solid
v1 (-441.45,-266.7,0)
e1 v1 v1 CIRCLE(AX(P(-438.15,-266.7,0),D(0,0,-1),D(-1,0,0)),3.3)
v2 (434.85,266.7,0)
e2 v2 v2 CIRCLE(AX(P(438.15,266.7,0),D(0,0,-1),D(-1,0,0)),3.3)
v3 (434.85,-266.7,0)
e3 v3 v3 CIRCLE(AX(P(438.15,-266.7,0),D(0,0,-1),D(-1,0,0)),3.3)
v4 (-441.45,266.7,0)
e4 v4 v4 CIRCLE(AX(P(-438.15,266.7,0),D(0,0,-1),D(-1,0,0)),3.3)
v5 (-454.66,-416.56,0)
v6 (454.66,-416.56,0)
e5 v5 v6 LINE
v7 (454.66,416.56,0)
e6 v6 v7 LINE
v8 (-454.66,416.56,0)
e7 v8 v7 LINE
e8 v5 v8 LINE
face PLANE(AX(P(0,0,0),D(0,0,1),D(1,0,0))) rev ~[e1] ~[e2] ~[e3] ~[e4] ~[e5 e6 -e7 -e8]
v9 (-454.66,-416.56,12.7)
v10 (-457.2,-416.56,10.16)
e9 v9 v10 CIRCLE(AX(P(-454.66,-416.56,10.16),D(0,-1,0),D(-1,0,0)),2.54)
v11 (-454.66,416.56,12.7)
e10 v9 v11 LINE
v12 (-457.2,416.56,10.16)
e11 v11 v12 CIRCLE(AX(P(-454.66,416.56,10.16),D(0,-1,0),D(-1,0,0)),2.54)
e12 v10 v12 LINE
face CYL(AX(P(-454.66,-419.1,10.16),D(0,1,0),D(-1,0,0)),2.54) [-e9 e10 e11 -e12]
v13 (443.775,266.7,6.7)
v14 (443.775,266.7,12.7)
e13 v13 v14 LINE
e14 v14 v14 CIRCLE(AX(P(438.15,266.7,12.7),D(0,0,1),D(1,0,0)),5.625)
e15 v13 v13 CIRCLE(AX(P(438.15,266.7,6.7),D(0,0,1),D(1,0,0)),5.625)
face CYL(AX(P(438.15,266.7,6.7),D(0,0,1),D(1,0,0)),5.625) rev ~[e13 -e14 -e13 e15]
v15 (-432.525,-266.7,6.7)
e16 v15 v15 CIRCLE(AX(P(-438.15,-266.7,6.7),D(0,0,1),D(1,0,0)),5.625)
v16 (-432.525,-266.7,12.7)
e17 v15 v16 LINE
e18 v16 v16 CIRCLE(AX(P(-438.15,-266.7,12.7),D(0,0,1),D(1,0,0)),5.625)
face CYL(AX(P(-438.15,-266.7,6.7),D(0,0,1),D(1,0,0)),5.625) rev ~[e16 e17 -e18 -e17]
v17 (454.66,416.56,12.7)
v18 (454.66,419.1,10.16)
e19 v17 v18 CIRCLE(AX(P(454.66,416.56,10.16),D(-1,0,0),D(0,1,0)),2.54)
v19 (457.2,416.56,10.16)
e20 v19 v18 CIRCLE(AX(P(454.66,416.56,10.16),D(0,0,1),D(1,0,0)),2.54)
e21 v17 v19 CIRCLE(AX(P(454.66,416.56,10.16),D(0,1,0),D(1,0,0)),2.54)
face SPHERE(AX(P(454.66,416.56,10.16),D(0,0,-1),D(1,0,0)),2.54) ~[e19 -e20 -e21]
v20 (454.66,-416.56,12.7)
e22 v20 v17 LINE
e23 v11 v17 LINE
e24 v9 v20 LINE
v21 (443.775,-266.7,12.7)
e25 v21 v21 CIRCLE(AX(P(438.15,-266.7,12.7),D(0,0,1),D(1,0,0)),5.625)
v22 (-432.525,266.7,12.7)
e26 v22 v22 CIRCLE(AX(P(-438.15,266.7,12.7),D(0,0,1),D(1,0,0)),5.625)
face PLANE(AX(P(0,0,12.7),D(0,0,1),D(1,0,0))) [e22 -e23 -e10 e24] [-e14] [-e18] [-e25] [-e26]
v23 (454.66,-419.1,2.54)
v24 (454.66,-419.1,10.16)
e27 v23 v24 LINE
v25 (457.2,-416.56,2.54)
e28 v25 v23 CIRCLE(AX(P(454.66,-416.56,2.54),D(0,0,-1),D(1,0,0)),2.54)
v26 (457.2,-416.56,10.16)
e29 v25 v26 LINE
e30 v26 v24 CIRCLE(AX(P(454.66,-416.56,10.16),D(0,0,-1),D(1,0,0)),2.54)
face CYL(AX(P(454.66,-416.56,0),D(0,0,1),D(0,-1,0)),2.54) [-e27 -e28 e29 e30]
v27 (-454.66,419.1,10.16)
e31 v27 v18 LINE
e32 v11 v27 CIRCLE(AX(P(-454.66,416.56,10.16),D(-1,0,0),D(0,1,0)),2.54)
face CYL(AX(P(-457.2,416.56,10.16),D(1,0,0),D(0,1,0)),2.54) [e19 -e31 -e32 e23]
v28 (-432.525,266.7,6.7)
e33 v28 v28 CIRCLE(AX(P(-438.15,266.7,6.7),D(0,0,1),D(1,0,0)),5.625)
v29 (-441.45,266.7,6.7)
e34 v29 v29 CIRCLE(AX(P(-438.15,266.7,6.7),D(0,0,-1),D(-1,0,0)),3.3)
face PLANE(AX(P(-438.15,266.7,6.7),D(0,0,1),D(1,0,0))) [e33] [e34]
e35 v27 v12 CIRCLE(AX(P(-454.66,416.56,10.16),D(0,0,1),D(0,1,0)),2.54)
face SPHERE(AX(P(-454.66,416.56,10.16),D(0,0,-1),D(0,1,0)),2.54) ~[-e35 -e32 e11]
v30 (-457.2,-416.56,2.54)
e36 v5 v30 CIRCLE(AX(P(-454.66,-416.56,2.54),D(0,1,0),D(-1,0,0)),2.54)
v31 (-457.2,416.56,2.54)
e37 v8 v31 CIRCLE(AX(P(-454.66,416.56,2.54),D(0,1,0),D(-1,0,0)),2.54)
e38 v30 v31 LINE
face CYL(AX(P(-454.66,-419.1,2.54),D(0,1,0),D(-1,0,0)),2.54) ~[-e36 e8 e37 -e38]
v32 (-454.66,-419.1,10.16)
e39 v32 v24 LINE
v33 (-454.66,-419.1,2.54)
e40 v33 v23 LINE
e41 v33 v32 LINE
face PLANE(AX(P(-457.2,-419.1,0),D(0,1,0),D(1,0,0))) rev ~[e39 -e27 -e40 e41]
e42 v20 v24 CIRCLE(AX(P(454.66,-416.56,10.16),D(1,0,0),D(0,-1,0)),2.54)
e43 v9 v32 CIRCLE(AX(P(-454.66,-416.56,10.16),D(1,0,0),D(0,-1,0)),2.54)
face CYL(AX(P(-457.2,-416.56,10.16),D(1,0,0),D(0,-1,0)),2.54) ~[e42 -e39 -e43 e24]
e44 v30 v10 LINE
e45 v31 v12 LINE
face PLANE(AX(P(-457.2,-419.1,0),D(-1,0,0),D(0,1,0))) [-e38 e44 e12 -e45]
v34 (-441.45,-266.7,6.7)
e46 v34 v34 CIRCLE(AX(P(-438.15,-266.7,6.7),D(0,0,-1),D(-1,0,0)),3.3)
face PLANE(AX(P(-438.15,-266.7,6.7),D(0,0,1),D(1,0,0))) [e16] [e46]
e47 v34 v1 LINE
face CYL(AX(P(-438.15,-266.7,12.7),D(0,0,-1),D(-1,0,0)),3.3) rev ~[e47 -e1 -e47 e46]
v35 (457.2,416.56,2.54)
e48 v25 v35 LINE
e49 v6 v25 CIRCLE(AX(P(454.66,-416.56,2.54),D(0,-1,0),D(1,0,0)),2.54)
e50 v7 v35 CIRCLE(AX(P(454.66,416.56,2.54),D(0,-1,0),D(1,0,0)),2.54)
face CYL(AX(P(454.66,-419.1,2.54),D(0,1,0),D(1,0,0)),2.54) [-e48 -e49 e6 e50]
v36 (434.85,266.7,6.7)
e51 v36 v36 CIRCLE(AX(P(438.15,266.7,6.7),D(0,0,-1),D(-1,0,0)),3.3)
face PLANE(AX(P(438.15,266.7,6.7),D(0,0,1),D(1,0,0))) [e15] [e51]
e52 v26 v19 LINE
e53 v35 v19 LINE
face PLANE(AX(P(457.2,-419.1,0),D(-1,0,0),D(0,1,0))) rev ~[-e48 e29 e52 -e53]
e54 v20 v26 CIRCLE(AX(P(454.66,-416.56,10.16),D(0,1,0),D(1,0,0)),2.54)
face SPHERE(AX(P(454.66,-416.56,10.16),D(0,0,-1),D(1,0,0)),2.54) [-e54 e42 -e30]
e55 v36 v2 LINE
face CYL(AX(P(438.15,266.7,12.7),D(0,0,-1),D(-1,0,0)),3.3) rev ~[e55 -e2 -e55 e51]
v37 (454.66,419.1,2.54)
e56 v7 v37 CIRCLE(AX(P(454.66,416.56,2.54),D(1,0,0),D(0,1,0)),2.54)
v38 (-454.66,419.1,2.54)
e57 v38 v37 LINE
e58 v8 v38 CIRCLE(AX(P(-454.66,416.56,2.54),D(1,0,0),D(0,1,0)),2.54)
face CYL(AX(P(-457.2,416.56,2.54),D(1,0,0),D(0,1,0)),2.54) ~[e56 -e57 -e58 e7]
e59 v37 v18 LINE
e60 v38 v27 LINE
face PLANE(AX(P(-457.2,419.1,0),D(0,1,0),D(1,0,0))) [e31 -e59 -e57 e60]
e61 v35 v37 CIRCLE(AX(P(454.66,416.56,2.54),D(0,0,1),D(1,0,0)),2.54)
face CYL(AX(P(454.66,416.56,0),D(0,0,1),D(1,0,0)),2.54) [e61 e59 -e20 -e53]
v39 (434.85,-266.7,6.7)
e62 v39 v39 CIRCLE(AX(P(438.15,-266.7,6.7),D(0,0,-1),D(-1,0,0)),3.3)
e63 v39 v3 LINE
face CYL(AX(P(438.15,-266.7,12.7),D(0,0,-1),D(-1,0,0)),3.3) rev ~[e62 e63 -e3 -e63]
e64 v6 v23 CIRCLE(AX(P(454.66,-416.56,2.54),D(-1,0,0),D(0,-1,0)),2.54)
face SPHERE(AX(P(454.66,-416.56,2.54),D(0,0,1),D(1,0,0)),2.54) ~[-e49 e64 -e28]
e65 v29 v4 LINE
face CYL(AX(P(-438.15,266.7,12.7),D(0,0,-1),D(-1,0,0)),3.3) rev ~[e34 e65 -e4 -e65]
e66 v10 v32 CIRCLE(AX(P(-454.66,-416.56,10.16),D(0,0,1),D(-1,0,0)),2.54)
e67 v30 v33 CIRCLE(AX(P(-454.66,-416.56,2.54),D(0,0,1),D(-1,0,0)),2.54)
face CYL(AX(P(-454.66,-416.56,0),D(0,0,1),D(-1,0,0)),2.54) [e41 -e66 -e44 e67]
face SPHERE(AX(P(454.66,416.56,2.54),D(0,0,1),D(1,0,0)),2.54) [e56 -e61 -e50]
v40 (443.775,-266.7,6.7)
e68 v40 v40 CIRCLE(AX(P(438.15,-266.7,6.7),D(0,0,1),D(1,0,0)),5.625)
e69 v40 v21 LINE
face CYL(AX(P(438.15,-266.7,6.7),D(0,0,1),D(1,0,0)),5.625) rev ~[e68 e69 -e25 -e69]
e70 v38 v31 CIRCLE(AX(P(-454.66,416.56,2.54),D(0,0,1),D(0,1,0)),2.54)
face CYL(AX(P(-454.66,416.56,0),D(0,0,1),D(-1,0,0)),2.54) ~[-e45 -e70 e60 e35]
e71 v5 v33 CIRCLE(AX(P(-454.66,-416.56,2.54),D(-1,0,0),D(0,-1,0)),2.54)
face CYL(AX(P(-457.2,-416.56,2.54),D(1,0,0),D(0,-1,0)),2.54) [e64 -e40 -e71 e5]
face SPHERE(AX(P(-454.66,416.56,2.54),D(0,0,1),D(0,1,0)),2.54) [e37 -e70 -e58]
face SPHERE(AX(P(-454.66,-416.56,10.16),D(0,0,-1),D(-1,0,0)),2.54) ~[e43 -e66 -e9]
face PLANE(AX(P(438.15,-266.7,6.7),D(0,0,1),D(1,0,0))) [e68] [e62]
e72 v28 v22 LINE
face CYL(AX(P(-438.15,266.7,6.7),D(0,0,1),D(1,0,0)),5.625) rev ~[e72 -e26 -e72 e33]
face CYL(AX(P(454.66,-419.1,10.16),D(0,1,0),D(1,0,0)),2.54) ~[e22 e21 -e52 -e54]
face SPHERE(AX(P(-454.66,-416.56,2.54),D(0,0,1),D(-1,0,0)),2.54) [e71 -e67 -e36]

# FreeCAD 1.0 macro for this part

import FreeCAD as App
import Part
import Sketcher
Q = App.Units.Quantity


def add_polygon(sketch, points):
    """Adds a closed chain of lines whose ends are joined by coincident constraints."""
    first, n = sketch.GeometryCount, len(points)
    for a, b in zip(points, points[1:] + points[:1]):
        sketch.addGeometry(Part.LineSegment(App.Vector(*a, 0), App.Vector(*b, 0)), False)
    for i in range(n):
        sketch.addConstraint(Sketcher.Constraint("Coincident", first + i, 2, first + (i + 1) % n, 1))

doc = App.newDocument("Part")
body = doc.addObject("PartDesign::Body", "Body")

# Sketch on XY plane
sketch1 = body.newObject("Sketcher::SketchObject", "Sketch")
sketch1.AttachmentSupport = (doc.getObject("XY_Plane"), [""])
sketch1.MapMode = "FlatFace"
add_polygon(sketch1, [(-457.2, 419.1), (-457.2, -419.1), (457.2, -419.1), (457.2, 419.1)])  # lines 0-3
sketch1.addConstraint([
    Sketcher.Constraint("Vertical", 0),
    Sketcher.Constraint("Horizontal", 1),
    Sketcher.Constraint("Vertical", 2),
    Sketcher.Constraint("Horizontal", 3),
    Sketcher.Constraint("Symmetric", 0, 2, 2, 2, -1, 1),
    Sketcher.Constraint("DistanceX", 1, 1, 1, 2, Q("36 in")),
    Sketcher.Constraint("DistanceY", 0, 2, 0, 1, Q("33 in")),
])
pad1 = body.newObject("PartDesign::Pad", "Pad")
pad1.Profile = sketch1
pad1.Length = Q("0.5 in")
doc.recompute()

fillet = body.newObject("PartDesign::Fillet", "Fillet")
fillet.Base = (pad1, ["Edge1"])
fillet.UseAllEdges = True
fillet.Radius = Q("0.1 in")

# Sketch on XY plane
sketch2 = body.newObject("Sketcher::SketchObject", "Sketch001")
sketch2.AttachmentSupport = (doc.getObject("XY_Plane"), [""])
sketch2.MapMode = "FlatFace"
sketch2.AttachmentOffset = App.Placement(App.Vector(0, 0, 0.5 * 25.4), App.Rotation())
sketch2.addGeometry([
    Part.Circle(App.Vector(-438.15, -266.7, 0), App.Vector(0, 0, 1), 3.3),
    Part.Circle(App.Vector(-438.15, 266.7, 0), App.Vector(0, 0, 1), 3.3),
    Part.Circle(App.Vector(438.15, 266.7, 0), App.Vector(0, 0, 1), 3.3),
    Part.Circle(App.Vector(438.15, -266.7, 0), App.Vector(0, 0, 1), 3.3),
], False)
sketch2.addConstraint([
    Sketcher.Constraint("Equal", 0, 1),
    Sketcher.Constraint("Equal", 1, 2),
    Sketcher.Constraint("Equal", 2, 3),
    Sketcher.Constraint("Symmetric", 0, 3, 2, 3, -1, 1),
    Sketcher.Constraint("Symmetric", 1, 3, 3, 3, -1, 1),
    Sketcher.Constraint("Symmetric", 1, 3, 2, 3, -2),
    Sketcher.Constraint("DistanceY", 0, 3, 1, 3, Q("21 in")),
    Sketcher.Constraint("DistanceX", 1, 3, 2, 3, Q("34.5 in")),
    Sketcher.Constraint("Diameter", 0, Q("6.6 mm")),
])
doc.recompute()
hole = body.newObject("PartDesign::Hole", "Hole")
hole.Profile = sketch2
hole.ThreadType = "None"
hole.Diameter = 6.6
hole.DepthType = "ThroughAll"
hole.HoleCutType = "Counterbore"
hole.HoleCutDiameter = 11.25
hole.HoleCutDepth = 6

doc.recompute()
